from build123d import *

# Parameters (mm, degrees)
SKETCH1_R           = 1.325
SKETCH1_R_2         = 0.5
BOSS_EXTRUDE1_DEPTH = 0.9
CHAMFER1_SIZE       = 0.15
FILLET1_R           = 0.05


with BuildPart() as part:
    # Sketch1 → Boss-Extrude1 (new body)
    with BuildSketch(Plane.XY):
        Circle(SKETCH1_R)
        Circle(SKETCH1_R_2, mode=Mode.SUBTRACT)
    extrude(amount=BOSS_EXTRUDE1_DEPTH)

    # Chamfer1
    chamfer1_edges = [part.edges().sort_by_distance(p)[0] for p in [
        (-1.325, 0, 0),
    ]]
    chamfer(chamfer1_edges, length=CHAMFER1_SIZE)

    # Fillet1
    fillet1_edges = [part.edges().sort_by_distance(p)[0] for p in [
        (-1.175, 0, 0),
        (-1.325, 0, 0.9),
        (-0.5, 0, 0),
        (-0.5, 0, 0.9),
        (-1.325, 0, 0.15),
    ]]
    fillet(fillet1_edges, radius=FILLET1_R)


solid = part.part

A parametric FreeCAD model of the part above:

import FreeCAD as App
import Part
import Sketcher
from FreeCAD import Vector
Q = App.Units.Quantity


def edges_at(feature, points):
    """Names of the edges that pass closest to the given points."""
    edges = feature.Shape.Edges
    near = lambda p: min(range(len(edges)), key=lambda i: edges[i].distToShape(Part.Vertex(*p))[0])
    return sorted({f"Edge{near(p) + 1}" for p in points})

doc = App.newDocument("Part")
body = doc.addObject("PartDesign::Body", "Body")

sketch1 = body.newObject("Sketcher::SketchObject", "Sketch")
sketch1.AttachmentSupport = (doc.getObject("XY_Plane"), [""])
sketch1.MapMode = "FlatFace"
sketch1.addGeometry(Part.Circle(Vector(0, 0, 0), Vector(0, 0, 1), 1.3), False)
sketch1.addGeometry(Part.Circle(Vector(0, 0, 0), Vector(0, 0, 1), 0.5), False)
sketch1.addConstraint(Sketcher.Constraint("Coincident", 0, 3, -1, 1))
sketch1.addConstraint(Sketcher.Constraint("Coincident", 1, 3, -1, 1))
sketch1.addConstraint(Sketcher.Constraint("Diameter", 1, Q("1 mm")))
sketch1.addConstraint(Sketcher.Constraint("Diameter", 0, Q("2.65 mm")))
pad1 = body.newObject("PartDesign::Pad", "Pad")
pad1.Profile = sketch1
pad1.Length = 0.9
doc.recompute()

chamfer = body.newObject("PartDesign::Chamfer", "Chamfer")
chamfer.Base = (pad1, edges_at(pad1, [(-1.325, 0, 0)]))
chamfer.Size = 0.15
doc.recompute()

fillet = body.newObject("PartDesign::Fillet", "Fillet")
fillet.Base = (chamfer, edges_at(chamfer, [
    (-1.175, 0, 0),
    (-1.325, 0, 0.9),
    (-0.5, 0, 0),
    (-0.5, 0, 0.9),
    (-1.325, 0, 0.15),
]))
fillet.Radius = 0.05

doc.recompute()
